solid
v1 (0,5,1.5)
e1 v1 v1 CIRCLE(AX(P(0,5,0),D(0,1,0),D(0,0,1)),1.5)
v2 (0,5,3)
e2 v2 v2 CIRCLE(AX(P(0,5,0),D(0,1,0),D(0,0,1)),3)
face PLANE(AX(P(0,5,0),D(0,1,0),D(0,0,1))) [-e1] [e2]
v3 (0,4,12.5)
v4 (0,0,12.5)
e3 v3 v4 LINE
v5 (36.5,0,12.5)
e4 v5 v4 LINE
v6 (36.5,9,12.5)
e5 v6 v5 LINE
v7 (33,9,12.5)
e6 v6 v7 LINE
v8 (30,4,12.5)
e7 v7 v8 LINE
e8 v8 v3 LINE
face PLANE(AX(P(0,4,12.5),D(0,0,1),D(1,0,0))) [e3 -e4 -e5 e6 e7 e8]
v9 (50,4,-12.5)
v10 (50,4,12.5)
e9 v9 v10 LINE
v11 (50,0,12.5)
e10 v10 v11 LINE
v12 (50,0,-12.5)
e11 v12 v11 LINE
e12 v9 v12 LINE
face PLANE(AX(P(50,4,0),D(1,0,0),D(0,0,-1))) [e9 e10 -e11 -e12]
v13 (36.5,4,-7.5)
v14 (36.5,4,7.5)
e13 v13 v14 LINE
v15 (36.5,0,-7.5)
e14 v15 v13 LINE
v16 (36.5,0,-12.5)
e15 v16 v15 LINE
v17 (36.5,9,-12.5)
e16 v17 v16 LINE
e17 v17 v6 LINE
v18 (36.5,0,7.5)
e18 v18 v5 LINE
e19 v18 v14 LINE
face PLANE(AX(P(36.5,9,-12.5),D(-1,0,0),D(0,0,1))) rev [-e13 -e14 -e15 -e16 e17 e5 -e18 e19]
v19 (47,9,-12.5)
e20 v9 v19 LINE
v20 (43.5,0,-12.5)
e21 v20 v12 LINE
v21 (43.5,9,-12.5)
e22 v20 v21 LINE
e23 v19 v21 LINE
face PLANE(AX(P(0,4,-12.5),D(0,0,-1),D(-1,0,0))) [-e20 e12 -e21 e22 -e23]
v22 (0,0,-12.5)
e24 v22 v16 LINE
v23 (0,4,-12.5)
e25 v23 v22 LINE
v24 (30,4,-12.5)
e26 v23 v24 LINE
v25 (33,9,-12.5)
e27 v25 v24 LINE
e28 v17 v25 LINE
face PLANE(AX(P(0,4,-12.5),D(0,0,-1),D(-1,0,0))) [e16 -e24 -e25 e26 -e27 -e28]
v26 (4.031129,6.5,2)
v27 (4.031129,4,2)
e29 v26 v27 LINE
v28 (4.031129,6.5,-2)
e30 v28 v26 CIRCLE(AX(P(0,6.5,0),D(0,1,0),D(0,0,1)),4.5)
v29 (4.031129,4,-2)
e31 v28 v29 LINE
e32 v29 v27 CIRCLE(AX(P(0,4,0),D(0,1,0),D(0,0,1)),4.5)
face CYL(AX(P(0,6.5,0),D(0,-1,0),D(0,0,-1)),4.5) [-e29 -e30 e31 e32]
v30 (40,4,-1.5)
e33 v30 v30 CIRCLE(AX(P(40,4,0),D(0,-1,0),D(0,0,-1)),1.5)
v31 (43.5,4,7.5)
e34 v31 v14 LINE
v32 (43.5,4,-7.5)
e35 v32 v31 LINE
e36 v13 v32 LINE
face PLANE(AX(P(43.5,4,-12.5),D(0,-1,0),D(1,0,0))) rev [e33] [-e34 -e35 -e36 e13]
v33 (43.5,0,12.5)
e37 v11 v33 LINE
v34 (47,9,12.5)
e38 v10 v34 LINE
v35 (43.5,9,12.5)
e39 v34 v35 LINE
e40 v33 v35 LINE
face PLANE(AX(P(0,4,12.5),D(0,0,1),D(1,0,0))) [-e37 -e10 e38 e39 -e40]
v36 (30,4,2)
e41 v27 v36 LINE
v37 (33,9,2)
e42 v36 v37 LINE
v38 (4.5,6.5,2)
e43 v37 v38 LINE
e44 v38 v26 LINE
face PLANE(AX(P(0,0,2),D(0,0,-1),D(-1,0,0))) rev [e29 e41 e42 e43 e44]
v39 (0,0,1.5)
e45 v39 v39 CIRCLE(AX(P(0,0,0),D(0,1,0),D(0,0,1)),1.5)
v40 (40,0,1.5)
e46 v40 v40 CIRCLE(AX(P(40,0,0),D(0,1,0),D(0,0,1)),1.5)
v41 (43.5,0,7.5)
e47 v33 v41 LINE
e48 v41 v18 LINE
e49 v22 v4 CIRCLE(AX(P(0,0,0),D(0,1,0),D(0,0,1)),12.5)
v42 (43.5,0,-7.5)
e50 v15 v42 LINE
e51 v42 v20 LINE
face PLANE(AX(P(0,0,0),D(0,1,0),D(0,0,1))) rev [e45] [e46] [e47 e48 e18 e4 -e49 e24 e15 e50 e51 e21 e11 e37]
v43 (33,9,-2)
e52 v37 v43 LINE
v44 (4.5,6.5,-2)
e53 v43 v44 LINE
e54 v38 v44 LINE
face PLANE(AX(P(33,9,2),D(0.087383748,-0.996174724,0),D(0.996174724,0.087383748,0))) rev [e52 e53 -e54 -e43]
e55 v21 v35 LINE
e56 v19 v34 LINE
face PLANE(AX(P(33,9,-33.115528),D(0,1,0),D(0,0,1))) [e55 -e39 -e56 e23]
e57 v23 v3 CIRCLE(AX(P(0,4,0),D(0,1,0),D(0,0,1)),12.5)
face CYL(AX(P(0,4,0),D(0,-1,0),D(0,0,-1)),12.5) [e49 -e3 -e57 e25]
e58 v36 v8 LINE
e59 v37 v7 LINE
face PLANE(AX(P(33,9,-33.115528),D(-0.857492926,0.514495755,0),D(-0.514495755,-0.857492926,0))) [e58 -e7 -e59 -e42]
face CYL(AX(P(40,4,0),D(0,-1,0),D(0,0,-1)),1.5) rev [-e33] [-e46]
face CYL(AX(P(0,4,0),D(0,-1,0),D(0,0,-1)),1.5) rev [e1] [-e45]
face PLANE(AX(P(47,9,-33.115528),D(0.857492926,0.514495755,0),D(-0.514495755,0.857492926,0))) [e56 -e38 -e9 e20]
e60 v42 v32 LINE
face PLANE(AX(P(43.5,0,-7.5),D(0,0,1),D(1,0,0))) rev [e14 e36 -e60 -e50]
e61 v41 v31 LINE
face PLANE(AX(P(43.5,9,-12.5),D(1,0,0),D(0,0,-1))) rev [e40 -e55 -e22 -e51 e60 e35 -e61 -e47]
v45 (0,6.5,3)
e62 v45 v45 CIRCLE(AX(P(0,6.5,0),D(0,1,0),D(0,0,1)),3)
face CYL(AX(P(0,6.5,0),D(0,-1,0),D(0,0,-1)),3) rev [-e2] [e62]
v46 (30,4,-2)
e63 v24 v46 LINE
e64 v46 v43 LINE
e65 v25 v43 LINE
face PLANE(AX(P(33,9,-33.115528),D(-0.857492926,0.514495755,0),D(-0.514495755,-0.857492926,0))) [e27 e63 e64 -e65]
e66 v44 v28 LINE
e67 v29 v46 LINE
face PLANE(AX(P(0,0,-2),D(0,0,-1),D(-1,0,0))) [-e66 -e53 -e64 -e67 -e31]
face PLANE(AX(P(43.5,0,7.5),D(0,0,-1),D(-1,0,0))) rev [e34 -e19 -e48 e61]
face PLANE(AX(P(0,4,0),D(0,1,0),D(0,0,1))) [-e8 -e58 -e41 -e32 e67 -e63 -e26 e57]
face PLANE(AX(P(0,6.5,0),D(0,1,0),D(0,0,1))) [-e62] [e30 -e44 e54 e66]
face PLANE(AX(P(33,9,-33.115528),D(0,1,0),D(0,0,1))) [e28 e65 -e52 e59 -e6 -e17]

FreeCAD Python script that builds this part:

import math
import FreeCAD as App
import Part
import Sketcher

V = App.Vector

doc = App.newDocument("Part")
body = doc.addObject("PartDesign::Body", "Body")

# Sketch on XZ plane
sketch1 = doc.addObject("Sketcher::SketchObject", "Sketch")
body.addObject(sketch1)
sketch1.AttachmentSupport = (doc.XZ_Plane, [""])
sketch1.MapMode = "FlatFace"
sketch1.addGeometry(Part.LineSegment(V(50, -12.5, 0), V(0, -12.5, 0)), False)
sketch1.addGeometry(Part.ArcOfCircle(Part.Circle(V(0, 0, 0), V(0, 0, 1), 12.5), math.radians(180), math.radians(270)), False)
sketch1.addGeometry(Part.ArcOfCircle(Part.Circle(V(0, 0, 0), V(0, 0, 1), 12.5), math.radians(90), math.radians(180)), False)
sketch1.addGeometry(Part.LineSegment(V(0, 12.5, 0), V(50, 12.5, 0)), False)
sketch1.addGeometry(Part.LineSegment(V(50, 12.5, 0), V(50, -12.5, 0)), False)
sketch1.addGeometry(Part.Circle(V(40, 0, 0), V(0, 0, 1), 1.5), False)
sketch1.addGeometry(Part.Circle(V(0, 0, 0), V(0, 0, 1), 1.5), False)
sketch1.addConstraint(Sketcher.Constraint("Tangent", 0, 2, 1, 2))
sketch1.addConstraint(Sketcher.Constraint("Tangent", 1, 1, 2, 2))
sketch1.addConstraint(Sketcher.Constraint("Tangent", 2, 1, 3, 1))
sketch1.addConstraint(Sketcher.Constraint("Coincident", 3, 2, 4, 1))
sketch1.addConstraint(Sketcher.Constraint("Coincident", 4, 2, 0, 1))
sketch1.addConstraint(Sketcher.Constraint("Horizontal", 0))
sketch1.addConstraint(Sketcher.Constraint("Horizontal", 3))
sketch1.addConstraint(Sketcher.Constraint("Vertical", 4))
sketch1.addConstraint(Sketcher.Constraint("Coincident", 1, 3, -1, 1))
sketch1.addConstraint(Sketcher.Constraint("Coincident", 6, 3, -1, 1))
sketch1.addConstraint(Sketcher.Constraint("Equal", 1, 2))
sketch1.addConstraint(Sketcher.Constraint("Equal", 5, 6))
sketch1.addConstraint(Sketcher.Constraint("PointOnObject", 5, 3, -1))
sketch1.addConstraint(Sketcher.Constraint("PointOnObject", 1, 1, -1))
sketch1.addConstraint(Sketcher.Constraint("Diameter", 5, 3.0))
sketch1.addConstraint(Sketcher.Constraint("Radius", 1, 12.5))
sketch1.addConstraint(Sketcher.Constraint("DistanceX", 0, 2, 0, 1, 50.0))
sketch1.addConstraint(Sketcher.Constraint("DistanceX", -1, 1, 5, 3, 40.0))
pad1 = doc.addObject("PartDesign::Pad", "Pad")
body.addObject(pad1)
pad1.Profile = sketch1
pad1.Length = 4
pad1.Reversed = True

# Sketch on XZ plane
sketch2 = doc.addObject("Sketcher::SketchObject", "Sketch001")
body.addObject(sketch2)
sketch2.AttachmentSupport = (doc.XZ_Plane, [""])
sketch2.MapMode = "FlatFace"
sketch2.AttachmentOffset = App.Placement(V(0, 0, -4), App.Rotation())
sketch2.addGeometry(Part.Circle(V(0, 0, 0), V(0, 0, 1), 4.5), False)
sketch2.addGeometry(Part.Circle(V(0, 0, 0), V(0, 0, 1), 3), False)
sketch2.addConstraint(Sketcher.Constraint("Coincident", 0, 3, -1, 1))
sketch2.addConstraint(Sketcher.Constraint("Coincident", 1, 3, -1, 1))
sketch2.addConstraint(Sketcher.Constraint("Diameter", 0, 9.0))
sketch2.addConstraint(Sketcher.Constraint("Diameter", 1, 6.0))
pad2 = doc.addObject("PartDesign::Pad", "Pad001")
body.addObject(pad2)
pad2.Profile = sketch2
pad2.Length = 2.5
pad2.Reversed = True

# Sketch on XY plane
sketch3 = doc.addObject("Sketcher::SketchObject", "Sketch002")
body.addObject(sketch3)
sketch3.AttachmentSupport = (doc.XY_Plane, [""])
sketch3.MapMode = "FlatFace"
sketch3.AttachmentOffset = App.Placement(V(0, 0, 12.5), App.Rotation())
sketch3.addGeometry(Part.LineSegment(V(47, 9, 0), V(33, 9, 0)), False)
sketch3.addGeometry(Part.LineSegment(V(33, 9, 0), V(30, 4, 0)), False)
sketch3.addGeometry(Part.LineSegment(V(30, 4, 0), V(50, 4, 0)), False)
sketch3.addGeometry(Part.LineSegment(V(50, 4, 0), V(47, 9, 0)), False)
sketch3.addConstraint(Sketcher.Constraint("Coincident", 0, 2, 1, 1))
sketch3.addConstraint(Sketcher.Constraint("Coincident", 1, 2, 2, 1))
sketch3.addConstraint(Sketcher.Constraint("Coincident", 2, 2, 3, 1))
sketch3.addConstraint(Sketcher.Constraint("Coincident", 3, 2, 0, 1))
sketch3.addConstraint(Sketcher.Constraint("Horizontal", 0))
sketch3.addConstraint(Sketcher.Constraint("Horizontal", 2))
sketch3.addConstraint(Sketcher.Constraint("Equal", 1, 3))
sketch3.addConstraint(Sketcher.Constraint("DistanceX", 0, 2, 0, 1, 14.0))
sketch3.addConstraint(Sketcher.Constraint("DistanceX", 2, 1, 2, 2, 20.0))
sketch3.addConstraint(Sketcher.Constraint("DistanceX", -1, 1, 0, 2, 33.0))
sketch3.addConstraint(Sketcher.Constraint("DistanceY", -1, 1, 0, 2, 9.0))
sketch3.addConstraint(Sketcher.Constraint("DistanceY", -1, 1, 1, 2, 4.0))
pad3 = doc.addObject("PartDesign::Pad", "Pad002")
body.addObject(pad3)
pad3.Profile = sketch3
pad3.Length = 25
pad3.Reversed = True

# Sketch on XY plane
sketch4 = doc.addObject("Sketcher::SketchObject", "Sketch003")
body.addObject(sketch4)
sketch4.AttachmentSupport = (doc.XY_Plane, [""])
sketch4.MapMode = "FlatFace"
sketch4.AttachmentOffset = App.Placement(V(0, 0, 12.5), App.Rotation())
sketch4.addGeometry(Part.LineSegment(V(36, 9, 0), V(36, 4, 0)), False)
sketch4.addGeometry(Part.LineSegment(V(36, 4, 0), V(44, 4, 0)), False)
sketch4.addGeometry(Part.LineSegment(V(44, 4, 0), V(44, 9, 0)), False)
sketch4.addGeometry(Part.LineSegment(V(44, 9, 0), V(36, 9, 0)), False)
sketch4.addConstraint(Sketcher.Constraint("Coincident", 0, 2, 1, 1))
sketch4.addConstraint(Sketcher.Constraint("Coincident", 1, 2, 2, 1))
sketch4.addConstraint(Sketcher.Constraint("Coincident", 2, 2, 3, 1))
sketch4.addConstraint(Sketcher.Constraint("Coincident", 3, 2, 0, 1))
sketch4.addConstraint(Sketcher.Constraint("Vertical", 0))
sketch4.addConstraint(Sketcher.Constraint("Horizontal", 1))
sketch4.addConstraint(Sketcher.Constraint("Vertical", 2))
sketch4.addConstraint(Sketcher.Constraint("Horizontal", 3))
sketch4.addConstraint(Sketcher.Constraint("DistanceX", 1, 1, 1, 2, 7.0))
sketch4.addConstraint(Sketcher.Constraint("DistanceY", 0, 2, 0, 1, 5.0))
sketch4.addConstraint(Sketcher.Constraint("DistanceY", -1, 1, 0, 2, 4.0))
sketch4.addConstraint(Sketcher.Constraint("DistanceX", -1, 1, 0, 2, 36.5))
pocket1 = doc.addObject("PartDesign::Pocket", "Pocket")
body.addObject(pocket1)
pocket1.Profile = sketch4
pocket1.Type = "ThroughAll"

# Sketch on XZ plane
sketch5 = doc.addObject("Sketcher::SketchObject", "Sketch004")
body.addObject(sketch5)
sketch5.AttachmentSupport = (doc.XZ_Plane, [""])
sketch5.MapMode = "FlatFace"
sketch5.AttachmentOffset = App.Placement(V(0, 0, -4), App.Rotation())
sketch5.addGeometry(Part.LineSegment(V(36, 8, 0), V(36, 12, 0)), False)
sketch5.addGeometry(Part.LineSegment(V(36, 12, 0), V(44, 12, 0)), False)
sketch5.addGeometry(Part.LineSegment(V(44, 12, 0), V(44, 8, 0)), False)
sketch5.addGeometry(Part.LineSegment(V(44, 8, 0), V(36, 8, 0)), False)
sketch5.addGeometry(Part.LineSegment(V(36, -12, 0), V(36, -8, 0)), False)
sketch5.addGeometry(Part.LineSegment(V(36, -8, 0), V(44, -8, 0)), False)
sketch5.addGeometry(Part.LineSegment(V(44, -8, 0), V(44, -12, 0)), False)
sketch5.addGeometry(Part.LineSegment(V(44, -12, 0), V(36, -12, 0)), False)
sketch5.addConstraint(Sketcher.Constraint("Coincident", 0, 2, 1, 1))
sketch5.addConstraint(Sketcher.Constraint("Coincident", 1, 2, 2, 1))
sketch5.addConstraint(Sketcher.Constraint("Coincident", 2, 2, 3, 1))
sketch5.addConstraint(Sketcher.Constraint("Coincident", 3, 2, 0, 1))
sketch5.addConstraint(Sketcher.Constraint("Coincident", 4, 2, 5, 1))
sketch5.addConstraint(Sketcher.Constraint("Coincident", 5, 2, 6, 1))
sketch5.addConstraint(Sketcher.Constraint("Coincident", 6, 2, 7, 1))
sketch5.addConstraint(Sketcher.Constraint("Coincident", 7, 2, 4, 1))
sketch5.addConstraint(Sketcher.Constraint("Vertical", 0))
sketch5.addConstraint(Sketcher.Constraint("Horizontal", 1))
sketch5.addConstraint(Sketcher.Constraint("Vertical", 2))
sketch5.addConstraint(Sketcher.Constraint("Horizontal", 3))
sketch5.addConstraint(Sketcher.Constraint("Vertical", 4))
sketch5.addConstraint(Sketcher.Constraint("Horizontal", 5))
sketch5.addConstraint(Sketcher.Constraint("Vertical", 6))
sketch5.addConstraint(Sketcher.Constraint("Horizontal", 7))
sketch5.addConstraint(Sketcher.Constraint("Symmetric", 3, 2, 4, 2, -1))
sketch5.addConstraint(Sketcher.Constraint("Symmetric", 1, 2, 6, 2, -1))
sketch5.addConstraint(Sketcher.Constraint("DistanceX", 1, 1, 1, 2, 7.0))
sketch5.addConstraint(Sketcher.Constraint("DistanceY", 0, 1, 0, 2, 5.0))
sketch5.addConstraint(Sketcher.Constraint("DistanceY", 4, 2, 3, 2, 15.0))
sketch5.addConstraint(Sketcher.Constraint("DistanceX", -1, 1, 0, 2, 36.5))
pocket2 = doc.addObject("PartDesign::Pocket", "Pocket001")
body.addObject(pocket2)
pocket2.Profile = sketch5
pocket2.Type = "ThroughAll"
pocket2.Reversed = True

# Sketch on XY plane
sketch6 = doc.addObject("Sketcher::SketchObject", "Sketch005")
body.addObject(sketch6)
sketch6.AttachmentSupport = (doc.XY_Plane, [""])
sketch6.MapMode = "FlatFace"
sketch6.addGeometry(Part.LineSegment(V(30, 4, 0), V(33, 9, 0)), False)
sketch6.addGeometry(Part.LineSegment(V(33, 9, 0), V(4.5, 6.5, 0)), False)
sketch6.addGeometry(Part.LineSegment(V(4.5, 6.5, 0), V(3.2, 6.5, 0)), False)
sketch6.addGeometry(Part.LineSegment(V(3.2, 6.5, 0), V(3.2, 4, 0)), False)
sketch6.addGeometry(Part.LineSegment(V(3.2, 4, 0), V(30, 4, 0)), False)
sketch6.addConstraint(Sketcher.Constraint("Coincident", 0, 2, 1, 1))
sketch6.addConstraint(Sketcher.Constraint("Coincident", 1, 2, 2, 1))
sketch6.addConstraint(Sketcher.Constraint("Coincident", 2, 2, 3, 1))
sketch6.addConstraint(Sketcher.Constraint("Coincident", 3, 2, 4, 1))
sketch6.addConstraint(Sketcher.Constraint("Coincident", 4, 2, 0, 1))
sketch6.addConstraint(Sketcher.Constraint("Horizontal", 2))
sketch6.addConstraint(Sketcher.Constraint("Vertical", 3))
sketch6.addConstraint(Sketcher.Constraint("Horizontal", 4))
sketch6.addConstraint(Sketcher.Constraint("DistanceY", 3, 2, 3, 1, 2.5))
sketch6.addConstraint(Sketcher.Constraint("DistanceX", -1, 1, 0, 2, 33.0))
sketch6.addConstraint(Sketcher.Constraint("DistanceY", -1, 1, 0, 2, 9.0))
sketch6.addConstraint(Sketcher.Constraint("DistanceY", -1, 1, 3, 2, 4.0))
sketch6.addConstraint(Sketcher.Constraint("DistanceX", -1, 1, 4, 2, 30.0))
sketch6.addConstraint(Sketcher.Constraint("DistanceX", -1, 1, 1, 2, 4.5))
sketch6.addConstraint(Sketcher.Constraint("DistanceX", 2, 2, 2, 1, 1.284227))
pad4 = doc.addObject("PartDesign::Pad", "Pad003")
body.addObject(pad4)
pad4.Profile = sketch6
pad4.Length = 4
pad4.Midplane = True

# Sketch on XZ plane
sketch7 = doc.addObject("Sketcher::SketchObject", "Sketch006")
body.addObject(sketch7)
sketch7.AttachmentSupport = (doc.XZ_Plane, [""])
sketch7.MapMode = "FlatFace"
sketch7.AttachmentOffset = App.Placement(V(0, 0, -4), App.Rotation())
sketch7.addGeometry(Part.Circle(V(0, 0, 0), V(0, 0, 1), 3), False)
sketch7.addGeometry(Part.Circle(V(0, 0, 0), V(0, 0, 1), 1.5), False)
sketch7.addConstraint(Sketcher.Constraint("Coincident", 0, 3, -1, 1))
sketch7.addConstraint(Sketcher.Constraint("Coincident", 1, 3, -1, 1))
sketch7.addConstraint(Sketcher.Constraint("Diameter", 0, 6.0))
sketch7.addConstraint(Sketcher.Constraint("Diameter", 1, 3.0))
pad5 = doc.addObject("PartDesign::Pad", "Pad004")
body.addObject(pad5)
pad5.Profile = sketch7
pad5.Length = 1
pad5.Reversed = True

doc.recompute()
